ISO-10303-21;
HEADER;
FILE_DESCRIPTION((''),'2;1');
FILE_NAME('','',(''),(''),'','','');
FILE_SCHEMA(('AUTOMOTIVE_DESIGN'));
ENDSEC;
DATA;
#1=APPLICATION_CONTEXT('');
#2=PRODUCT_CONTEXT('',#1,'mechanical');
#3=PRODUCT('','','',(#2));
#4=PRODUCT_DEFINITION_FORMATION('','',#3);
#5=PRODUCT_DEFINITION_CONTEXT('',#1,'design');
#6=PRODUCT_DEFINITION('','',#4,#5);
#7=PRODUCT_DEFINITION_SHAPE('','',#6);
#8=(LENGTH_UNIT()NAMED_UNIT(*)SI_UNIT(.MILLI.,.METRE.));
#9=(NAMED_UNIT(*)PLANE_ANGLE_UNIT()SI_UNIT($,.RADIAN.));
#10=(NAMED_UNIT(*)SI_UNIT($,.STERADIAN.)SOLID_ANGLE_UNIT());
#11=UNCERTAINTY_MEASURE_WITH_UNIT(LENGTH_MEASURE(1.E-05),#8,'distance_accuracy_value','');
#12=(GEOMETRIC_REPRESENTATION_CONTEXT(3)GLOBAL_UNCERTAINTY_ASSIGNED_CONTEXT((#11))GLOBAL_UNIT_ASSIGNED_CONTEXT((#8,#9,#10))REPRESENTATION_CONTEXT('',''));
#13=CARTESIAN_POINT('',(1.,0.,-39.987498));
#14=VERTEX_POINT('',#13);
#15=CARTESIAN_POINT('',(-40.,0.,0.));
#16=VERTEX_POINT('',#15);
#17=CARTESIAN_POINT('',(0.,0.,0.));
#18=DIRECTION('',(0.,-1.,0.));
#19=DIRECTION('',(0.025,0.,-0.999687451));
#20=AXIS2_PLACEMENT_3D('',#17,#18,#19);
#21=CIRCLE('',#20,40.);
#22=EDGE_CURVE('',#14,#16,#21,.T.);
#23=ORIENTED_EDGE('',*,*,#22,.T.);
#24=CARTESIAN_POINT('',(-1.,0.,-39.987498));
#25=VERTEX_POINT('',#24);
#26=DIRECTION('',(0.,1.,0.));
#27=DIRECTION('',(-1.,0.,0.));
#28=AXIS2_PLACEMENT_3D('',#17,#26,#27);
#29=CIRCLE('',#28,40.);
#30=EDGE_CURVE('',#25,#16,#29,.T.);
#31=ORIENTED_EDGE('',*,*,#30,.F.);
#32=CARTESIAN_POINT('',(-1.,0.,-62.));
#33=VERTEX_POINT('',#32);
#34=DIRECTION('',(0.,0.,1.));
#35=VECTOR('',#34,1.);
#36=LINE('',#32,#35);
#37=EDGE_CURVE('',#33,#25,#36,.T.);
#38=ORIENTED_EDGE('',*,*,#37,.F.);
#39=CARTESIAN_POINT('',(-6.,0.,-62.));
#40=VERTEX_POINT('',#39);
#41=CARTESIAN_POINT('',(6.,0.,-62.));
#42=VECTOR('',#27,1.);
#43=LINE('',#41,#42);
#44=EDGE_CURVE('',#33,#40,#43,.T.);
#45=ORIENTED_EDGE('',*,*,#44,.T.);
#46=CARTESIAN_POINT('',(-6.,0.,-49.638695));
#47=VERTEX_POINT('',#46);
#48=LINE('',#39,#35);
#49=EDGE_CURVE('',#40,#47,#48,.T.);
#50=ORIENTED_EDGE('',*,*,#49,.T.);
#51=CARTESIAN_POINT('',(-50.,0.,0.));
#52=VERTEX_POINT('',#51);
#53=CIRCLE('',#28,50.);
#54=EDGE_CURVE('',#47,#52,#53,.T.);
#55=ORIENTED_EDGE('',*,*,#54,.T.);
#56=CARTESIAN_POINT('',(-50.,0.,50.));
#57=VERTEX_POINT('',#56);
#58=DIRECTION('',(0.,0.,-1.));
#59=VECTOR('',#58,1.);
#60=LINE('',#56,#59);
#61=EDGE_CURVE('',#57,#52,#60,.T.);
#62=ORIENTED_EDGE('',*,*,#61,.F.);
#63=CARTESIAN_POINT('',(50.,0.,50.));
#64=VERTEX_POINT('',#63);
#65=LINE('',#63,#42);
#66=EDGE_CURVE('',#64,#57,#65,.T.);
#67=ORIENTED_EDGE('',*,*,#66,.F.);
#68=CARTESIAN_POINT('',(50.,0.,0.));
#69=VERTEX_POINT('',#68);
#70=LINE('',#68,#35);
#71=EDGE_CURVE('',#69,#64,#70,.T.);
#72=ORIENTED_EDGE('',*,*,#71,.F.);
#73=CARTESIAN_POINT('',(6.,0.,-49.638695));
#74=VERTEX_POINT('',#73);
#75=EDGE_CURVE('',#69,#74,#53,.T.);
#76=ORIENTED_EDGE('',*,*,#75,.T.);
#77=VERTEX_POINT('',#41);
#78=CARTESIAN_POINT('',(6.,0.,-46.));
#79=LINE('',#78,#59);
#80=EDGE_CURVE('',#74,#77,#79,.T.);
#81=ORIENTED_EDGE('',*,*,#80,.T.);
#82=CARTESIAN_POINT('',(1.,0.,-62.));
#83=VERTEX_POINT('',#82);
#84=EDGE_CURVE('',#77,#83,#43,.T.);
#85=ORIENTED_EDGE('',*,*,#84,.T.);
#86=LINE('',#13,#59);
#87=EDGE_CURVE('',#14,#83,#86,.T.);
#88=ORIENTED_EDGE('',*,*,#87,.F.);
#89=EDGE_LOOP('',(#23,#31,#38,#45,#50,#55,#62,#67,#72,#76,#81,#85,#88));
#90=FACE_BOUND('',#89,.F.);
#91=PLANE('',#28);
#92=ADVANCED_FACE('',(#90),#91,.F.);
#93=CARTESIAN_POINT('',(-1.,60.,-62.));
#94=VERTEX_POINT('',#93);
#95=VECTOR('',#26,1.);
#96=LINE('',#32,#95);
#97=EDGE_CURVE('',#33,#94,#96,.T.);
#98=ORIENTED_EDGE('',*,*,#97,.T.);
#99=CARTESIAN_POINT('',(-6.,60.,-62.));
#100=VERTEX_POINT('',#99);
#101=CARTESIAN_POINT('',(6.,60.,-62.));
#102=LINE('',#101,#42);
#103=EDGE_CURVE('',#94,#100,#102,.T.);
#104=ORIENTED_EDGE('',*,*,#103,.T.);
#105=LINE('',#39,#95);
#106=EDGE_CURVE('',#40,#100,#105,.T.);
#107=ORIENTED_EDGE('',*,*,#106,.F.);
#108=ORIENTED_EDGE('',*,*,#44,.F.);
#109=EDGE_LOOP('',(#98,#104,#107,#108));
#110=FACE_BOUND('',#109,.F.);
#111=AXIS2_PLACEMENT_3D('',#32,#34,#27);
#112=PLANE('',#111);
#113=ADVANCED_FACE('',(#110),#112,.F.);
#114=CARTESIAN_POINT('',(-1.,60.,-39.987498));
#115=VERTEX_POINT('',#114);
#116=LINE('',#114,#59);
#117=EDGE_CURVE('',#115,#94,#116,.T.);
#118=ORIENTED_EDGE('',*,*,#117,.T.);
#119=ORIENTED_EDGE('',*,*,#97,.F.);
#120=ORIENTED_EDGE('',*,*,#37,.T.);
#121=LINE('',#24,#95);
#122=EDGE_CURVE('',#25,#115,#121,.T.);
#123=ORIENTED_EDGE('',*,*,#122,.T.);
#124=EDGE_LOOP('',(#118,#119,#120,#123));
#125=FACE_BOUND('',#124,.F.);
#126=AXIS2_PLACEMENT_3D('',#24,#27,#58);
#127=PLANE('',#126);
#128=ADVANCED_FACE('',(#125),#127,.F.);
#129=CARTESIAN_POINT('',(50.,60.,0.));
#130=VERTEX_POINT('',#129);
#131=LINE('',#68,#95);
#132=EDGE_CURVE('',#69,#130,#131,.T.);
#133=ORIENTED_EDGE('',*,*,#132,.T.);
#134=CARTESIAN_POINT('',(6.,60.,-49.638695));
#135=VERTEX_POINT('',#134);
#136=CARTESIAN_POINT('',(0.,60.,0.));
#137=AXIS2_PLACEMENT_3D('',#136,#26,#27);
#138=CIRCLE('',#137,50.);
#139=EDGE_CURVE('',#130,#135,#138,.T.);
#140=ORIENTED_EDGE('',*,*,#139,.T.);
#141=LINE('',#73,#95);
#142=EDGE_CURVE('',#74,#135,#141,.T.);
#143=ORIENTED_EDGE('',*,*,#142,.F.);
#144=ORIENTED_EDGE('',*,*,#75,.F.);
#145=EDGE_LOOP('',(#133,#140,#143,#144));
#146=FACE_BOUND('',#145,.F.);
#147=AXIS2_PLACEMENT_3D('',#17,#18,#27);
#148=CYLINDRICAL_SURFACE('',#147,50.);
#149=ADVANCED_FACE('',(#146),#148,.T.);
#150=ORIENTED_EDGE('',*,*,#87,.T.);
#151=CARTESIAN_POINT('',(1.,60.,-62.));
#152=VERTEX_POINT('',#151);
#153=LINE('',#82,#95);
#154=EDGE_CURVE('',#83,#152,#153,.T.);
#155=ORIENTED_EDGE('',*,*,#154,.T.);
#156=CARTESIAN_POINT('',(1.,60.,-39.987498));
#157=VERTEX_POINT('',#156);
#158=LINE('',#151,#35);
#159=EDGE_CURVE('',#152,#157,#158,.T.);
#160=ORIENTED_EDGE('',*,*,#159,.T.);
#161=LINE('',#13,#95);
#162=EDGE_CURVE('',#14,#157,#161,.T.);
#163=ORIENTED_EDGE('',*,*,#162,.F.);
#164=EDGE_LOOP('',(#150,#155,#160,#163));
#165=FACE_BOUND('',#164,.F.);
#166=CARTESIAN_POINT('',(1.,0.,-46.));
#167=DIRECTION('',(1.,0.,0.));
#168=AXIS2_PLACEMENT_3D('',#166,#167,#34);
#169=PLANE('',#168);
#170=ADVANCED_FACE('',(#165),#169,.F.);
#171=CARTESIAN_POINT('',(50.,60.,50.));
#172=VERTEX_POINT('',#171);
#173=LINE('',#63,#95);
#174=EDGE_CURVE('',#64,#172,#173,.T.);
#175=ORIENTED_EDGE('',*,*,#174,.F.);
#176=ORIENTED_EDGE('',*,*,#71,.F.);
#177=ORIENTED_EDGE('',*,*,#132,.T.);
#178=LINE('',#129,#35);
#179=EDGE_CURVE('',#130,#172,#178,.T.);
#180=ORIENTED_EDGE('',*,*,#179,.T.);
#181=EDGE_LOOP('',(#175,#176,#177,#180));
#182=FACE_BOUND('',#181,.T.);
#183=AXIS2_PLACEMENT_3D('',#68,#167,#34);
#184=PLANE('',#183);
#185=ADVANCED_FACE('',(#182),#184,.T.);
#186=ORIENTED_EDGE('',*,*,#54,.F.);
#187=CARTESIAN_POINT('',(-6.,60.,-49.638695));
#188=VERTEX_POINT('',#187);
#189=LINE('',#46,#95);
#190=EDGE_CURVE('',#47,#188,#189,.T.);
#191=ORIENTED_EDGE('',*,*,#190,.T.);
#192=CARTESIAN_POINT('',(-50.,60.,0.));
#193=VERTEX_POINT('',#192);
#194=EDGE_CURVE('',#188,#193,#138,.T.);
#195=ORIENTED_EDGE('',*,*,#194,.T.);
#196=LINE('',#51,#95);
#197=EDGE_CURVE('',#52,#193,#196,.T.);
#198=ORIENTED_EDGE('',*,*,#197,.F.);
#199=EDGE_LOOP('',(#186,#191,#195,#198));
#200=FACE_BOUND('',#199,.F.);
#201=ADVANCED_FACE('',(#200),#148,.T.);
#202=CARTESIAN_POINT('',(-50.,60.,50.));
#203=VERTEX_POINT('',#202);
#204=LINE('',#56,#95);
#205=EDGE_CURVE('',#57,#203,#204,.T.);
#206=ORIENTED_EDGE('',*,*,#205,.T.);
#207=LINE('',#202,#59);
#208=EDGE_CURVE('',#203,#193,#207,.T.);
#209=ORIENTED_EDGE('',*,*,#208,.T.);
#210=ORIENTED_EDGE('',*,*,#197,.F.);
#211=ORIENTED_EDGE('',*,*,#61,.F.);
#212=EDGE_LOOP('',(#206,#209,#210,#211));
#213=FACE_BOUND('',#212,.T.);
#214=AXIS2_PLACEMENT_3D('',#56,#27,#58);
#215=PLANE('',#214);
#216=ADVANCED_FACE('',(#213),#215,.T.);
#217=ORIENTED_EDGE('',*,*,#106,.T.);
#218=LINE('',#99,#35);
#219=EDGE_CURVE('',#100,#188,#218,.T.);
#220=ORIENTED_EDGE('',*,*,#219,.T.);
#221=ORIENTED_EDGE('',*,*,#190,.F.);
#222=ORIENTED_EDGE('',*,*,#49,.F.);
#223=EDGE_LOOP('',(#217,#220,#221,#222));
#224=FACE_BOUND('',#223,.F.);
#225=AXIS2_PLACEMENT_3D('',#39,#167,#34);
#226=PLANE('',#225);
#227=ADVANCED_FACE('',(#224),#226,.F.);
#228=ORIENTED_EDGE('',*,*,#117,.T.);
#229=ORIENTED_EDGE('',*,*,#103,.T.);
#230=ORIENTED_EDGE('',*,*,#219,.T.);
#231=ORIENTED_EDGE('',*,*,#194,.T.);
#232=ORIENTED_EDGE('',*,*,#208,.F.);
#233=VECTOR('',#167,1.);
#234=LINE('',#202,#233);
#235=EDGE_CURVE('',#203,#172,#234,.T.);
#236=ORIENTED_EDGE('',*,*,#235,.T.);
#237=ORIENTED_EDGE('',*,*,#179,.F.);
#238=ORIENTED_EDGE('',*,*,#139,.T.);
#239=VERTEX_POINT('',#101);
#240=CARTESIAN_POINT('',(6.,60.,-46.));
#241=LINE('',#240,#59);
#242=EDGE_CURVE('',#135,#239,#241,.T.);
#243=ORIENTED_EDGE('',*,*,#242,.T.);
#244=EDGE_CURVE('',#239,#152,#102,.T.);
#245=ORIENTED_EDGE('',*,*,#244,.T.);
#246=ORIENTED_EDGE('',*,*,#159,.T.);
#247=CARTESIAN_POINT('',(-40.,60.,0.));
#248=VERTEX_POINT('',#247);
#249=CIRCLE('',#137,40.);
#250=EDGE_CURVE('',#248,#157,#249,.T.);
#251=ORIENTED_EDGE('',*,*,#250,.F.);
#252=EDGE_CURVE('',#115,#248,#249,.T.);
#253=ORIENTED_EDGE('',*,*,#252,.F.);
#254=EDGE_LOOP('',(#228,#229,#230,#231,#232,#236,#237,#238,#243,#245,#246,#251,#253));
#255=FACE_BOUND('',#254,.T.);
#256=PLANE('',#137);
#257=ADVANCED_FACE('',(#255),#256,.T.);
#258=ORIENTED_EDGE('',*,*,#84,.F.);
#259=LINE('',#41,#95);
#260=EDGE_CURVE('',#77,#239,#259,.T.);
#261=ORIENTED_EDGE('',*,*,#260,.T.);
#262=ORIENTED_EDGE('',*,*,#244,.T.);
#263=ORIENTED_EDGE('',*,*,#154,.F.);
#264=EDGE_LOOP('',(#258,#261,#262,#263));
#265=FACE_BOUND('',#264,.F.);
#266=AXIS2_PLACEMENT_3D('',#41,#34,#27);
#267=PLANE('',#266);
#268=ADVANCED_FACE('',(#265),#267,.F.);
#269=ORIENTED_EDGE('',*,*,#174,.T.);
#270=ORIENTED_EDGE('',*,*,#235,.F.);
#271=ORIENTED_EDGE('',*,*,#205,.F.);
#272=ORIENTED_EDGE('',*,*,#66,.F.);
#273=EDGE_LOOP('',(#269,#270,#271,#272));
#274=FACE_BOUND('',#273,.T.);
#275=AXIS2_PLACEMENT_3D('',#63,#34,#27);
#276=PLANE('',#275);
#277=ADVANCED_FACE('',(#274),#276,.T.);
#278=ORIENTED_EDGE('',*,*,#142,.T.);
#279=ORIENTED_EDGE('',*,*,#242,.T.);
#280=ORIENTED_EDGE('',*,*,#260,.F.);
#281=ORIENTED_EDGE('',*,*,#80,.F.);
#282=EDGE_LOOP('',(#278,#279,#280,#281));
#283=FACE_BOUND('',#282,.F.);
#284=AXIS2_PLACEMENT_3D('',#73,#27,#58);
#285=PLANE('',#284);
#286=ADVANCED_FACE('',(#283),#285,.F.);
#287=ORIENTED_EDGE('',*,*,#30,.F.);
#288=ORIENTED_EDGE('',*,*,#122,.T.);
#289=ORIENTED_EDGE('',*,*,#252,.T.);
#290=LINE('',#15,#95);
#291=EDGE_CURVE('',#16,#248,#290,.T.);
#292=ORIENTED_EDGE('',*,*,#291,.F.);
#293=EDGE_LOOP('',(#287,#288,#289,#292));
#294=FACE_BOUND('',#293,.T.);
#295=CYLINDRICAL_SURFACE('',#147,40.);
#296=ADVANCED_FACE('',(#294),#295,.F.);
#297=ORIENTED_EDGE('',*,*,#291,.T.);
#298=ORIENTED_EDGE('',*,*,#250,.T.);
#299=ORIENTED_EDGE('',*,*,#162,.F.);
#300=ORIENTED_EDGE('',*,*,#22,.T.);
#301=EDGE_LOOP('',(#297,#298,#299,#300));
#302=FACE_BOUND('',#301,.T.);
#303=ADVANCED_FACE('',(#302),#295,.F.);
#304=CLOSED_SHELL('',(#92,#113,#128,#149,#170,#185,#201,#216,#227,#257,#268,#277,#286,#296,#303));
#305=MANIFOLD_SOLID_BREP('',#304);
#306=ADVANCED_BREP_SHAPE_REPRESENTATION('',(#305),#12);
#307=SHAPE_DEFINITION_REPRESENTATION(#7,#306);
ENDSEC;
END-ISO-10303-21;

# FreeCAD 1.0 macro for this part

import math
import FreeCAD as App
import Part
import Sketcher
Q = App.Units.Quantity

doc = App.newDocument("Part")
body = doc.addObject("PartDesign::Body", "Body")

# Sketch on XZ plane
sketch1 = body.newObject("Sketcher::SketchObject", "Sketch")
sketch1.AttachmentSupport = (doc.getObject("XZ_Plane"), [""])
sketch1.MapMode = "FlatFace"
sketch1.addGeometry([
    Part.LineSegment(App.Vector(-1, -39.987498, 0), App.Vector(-1, -62, 0)),  # 0
    Part.LineSegment(App.Vector(-1, -62, 0), App.Vector(-6, -62, 0)),  # 1
    Part.LineSegment(App.Vector(-6, -62, 0), App.Vector(-6, -49.638695, 0)),  # 2
    Part.ArcOfCircle(Part.Circle(App.Vector(0, 0, 0), App.Vector(0, 0, 1), 50), math.radians(180), math.radians(263.107897)),  # 3
    Part.LineSegment(App.Vector(-50, 0, 0), App.Vector(-50, 50, 0)),  # 4
    Part.LineSegment(App.Vector(-50, 50, 0), App.Vector(50, 50, 0)),  # 5
    Part.LineSegment(App.Vector(50, 50, 0), App.Vector(50, 0, 0)),  # 6
    Part.ArcOfCircle(Part.Circle(App.Vector(0, 0, 0), App.Vector(0, 0, 1), 50), math.radians(-83.107897), math.radians(0)),  # 7
    Part.LineSegment(App.Vector(6, -49.638695, 0), App.Vector(6, -62, 0)),  # 8
    Part.LineSegment(App.Vector(6, -62, 0), App.Vector(1, -62, 0)),  # 9
    Part.LineSegment(App.Vector(1, -62, 0), App.Vector(1, -39.987498, 0)),  # 10
    Part.ArcOfCircle(Part.Circle(App.Vector(0, 0, 0), App.Vector(0, 0, 1), 40), math.radians(-88.567456), math.radians(268.567456)),  # 11
], False)
sketch1.addConstraint([
    Sketcher.Constraint("Coincident", 0, 2, 1, 1),
    Sketcher.Constraint("Coincident", 1, 2, 2, 1),
    Sketcher.Constraint("Coincident", 2, 2, 3, 2),
    Sketcher.Constraint("Tangent", 3, 1, 4, 1),
    Sketcher.Constraint("Coincident", 4, 2, 5, 1),
    Sketcher.Constraint("Coincident", 5, 2, 6, 1),
    Sketcher.Constraint("Tangent", 6, 2, 7, 2),
    Sketcher.Constraint("Coincident", 7, 1, 8, 1),
    Sketcher.Constraint("Coincident", 8, 2, 9, 1),
    Sketcher.Constraint("Coincident", 9, 2, 10, 1),
    Sketcher.Constraint("Coincident", 10, 2, 11, 1),
    Sketcher.Constraint("Coincident", 11, 2, 0, 1),
    Sketcher.Constraint("Vertical", 0),
    Sketcher.Constraint("Horizontal", 1),
    Sketcher.Constraint("Vertical", 2),
    Sketcher.Constraint("Vertical", 4),
    Sketcher.Constraint("Horizontal", 5),
    Sketcher.Constraint("Vertical", 6),
    Sketcher.Constraint("Vertical", 8),
    Sketcher.Constraint("Horizontal", 9),
    Sketcher.Constraint("Vertical", 10),
    Sketcher.Constraint("Coincident", 3, 3, -1, 1),
    Sketcher.Constraint("Coincident", 7, 3, -1, 1),
    Sketcher.Constraint("Coincident", 11, 3, -1, 1),
    Sketcher.Constraint("Equal", 3, 7),
    Sketcher.Constraint("Symmetric", 1, 2, 8, 2, -2),
    Sketcher.Constraint("Horizontal", 10, 2, 11, 2),
    Sketcher.Constraint("Radius", 3, Q("50 mm")),
    Sketcher.Constraint("Radius", 11, Q("40 mm")),
    Sketcher.Constraint("DistanceX", 1, 2, 1, 1, Q("5 mm")),
    Sketcher.Constraint("DistanceY", 4, 1, 4, 2, Q("50 mm")),
    Sketcher.Constraint("DistanceX", 0, 2, -1, 1, Q("1 mm")),
    Sketcher.Constraint("DistanceY", 0, 2, -1, 1, Q("62 mm")),
])
pad1 = body.newObject("PartDesign::Pad", "Pad")
pad1.Profile = sketch1
pad1.Length = 60
pad1.Reversed = True

doc.recompute()
